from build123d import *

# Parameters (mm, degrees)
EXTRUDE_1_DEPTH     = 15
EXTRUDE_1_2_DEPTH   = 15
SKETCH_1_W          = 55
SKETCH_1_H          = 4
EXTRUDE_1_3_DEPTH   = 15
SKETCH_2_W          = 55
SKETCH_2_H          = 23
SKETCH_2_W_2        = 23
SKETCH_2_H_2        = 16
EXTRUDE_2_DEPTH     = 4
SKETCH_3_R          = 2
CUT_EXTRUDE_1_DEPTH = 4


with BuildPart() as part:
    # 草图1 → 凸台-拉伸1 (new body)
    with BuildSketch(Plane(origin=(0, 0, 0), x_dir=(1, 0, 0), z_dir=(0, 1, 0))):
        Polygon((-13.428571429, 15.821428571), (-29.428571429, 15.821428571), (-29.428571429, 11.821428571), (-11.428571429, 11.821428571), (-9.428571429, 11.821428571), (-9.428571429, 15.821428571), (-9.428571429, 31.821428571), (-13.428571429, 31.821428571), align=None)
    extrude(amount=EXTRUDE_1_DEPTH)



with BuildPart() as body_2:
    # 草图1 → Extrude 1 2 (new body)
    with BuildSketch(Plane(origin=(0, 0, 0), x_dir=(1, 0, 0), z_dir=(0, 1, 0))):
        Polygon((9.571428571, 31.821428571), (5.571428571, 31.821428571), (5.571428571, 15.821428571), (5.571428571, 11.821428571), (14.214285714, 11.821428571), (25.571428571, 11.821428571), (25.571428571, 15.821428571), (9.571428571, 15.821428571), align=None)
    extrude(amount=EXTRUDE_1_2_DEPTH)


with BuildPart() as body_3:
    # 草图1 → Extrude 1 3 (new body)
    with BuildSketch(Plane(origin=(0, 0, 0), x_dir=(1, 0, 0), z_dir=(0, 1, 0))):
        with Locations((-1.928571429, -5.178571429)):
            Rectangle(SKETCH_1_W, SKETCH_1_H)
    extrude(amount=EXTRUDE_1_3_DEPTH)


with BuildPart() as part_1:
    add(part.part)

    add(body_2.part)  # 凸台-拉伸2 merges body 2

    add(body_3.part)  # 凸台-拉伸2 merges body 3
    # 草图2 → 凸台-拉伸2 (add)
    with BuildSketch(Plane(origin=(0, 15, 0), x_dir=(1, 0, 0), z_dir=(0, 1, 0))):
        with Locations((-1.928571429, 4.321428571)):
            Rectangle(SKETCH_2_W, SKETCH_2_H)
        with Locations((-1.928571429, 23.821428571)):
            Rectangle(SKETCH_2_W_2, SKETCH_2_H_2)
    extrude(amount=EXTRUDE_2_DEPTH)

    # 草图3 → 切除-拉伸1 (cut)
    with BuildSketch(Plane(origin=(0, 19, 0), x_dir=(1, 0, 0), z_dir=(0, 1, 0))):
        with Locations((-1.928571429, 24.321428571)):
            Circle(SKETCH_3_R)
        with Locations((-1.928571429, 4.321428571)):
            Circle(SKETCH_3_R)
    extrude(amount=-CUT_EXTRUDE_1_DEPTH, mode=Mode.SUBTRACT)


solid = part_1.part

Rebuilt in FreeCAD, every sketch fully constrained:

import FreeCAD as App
import Part
import Sketcher

V = App.Vector
Q = App.Units.Quantity


def add_polygon(sketch, points):
    """Adds a closed chain of lines whose ends are joined by coincident constraints."""
    first, n = sketch.GeometryCount, len(points)
    for a, b in zip(points, points[1:] + points[:1]):
        sketch.addGeometry(Part.LineSegment(App.Vector(*a, 0), App.Vector(*b, 0)), False)
    for i in range(n):
        sketch.addConstraint(Sketcher.Constraint("Coincident", first + i, 2, first + (i + 1) % n, 1))

doc = App.newDocument("Part")
body = doc.addObject("PartDesign::Body", "Body")

# Sketch on XZ plane
sketch1 = body.newObject("Sketcher::SketchObject", "Sketch")
sketch1.AttachmentSupport = (doc.getObject("XZ_Plane"), [""])
sketch1.MapMode = "FlatFace"
add_polygon(sketch1, [(-13.428571, -15.821429), (-29.428571, -15.821429), (-29.428571, -11.821429), (-9.428571, -11.821429), (-9.428571, -31.821429), (-13.428571, -31.821429)])  # lines 0-5
sketch1.addConstraint([
    Sketcher.Constraint("Horizontal", 0),
    Sketcher.Constraint("Vertical", 1),
    Sketcher.Constraint("Horizontal", 2),
    Sketcher.Constraint("Vertical", 3),
    Sketcher.Constraint("Horizontal", 4),
    Sketcher.Constraint("Vertical", 5),
    Sketcher.Constraint("Equal", 4, 1),
    Sketcher.Constraint("Equal", 2, 3),
    Sketcher.Constraint("DistanceX", 0, 2, 0, 1, Q("16 mm")),
    Sketcher.Constraint("DistanceX", 2, 1, 2, 2, Q("20 mm")),
    Sketcher.Constraint("DistanceX", 0, 2, -1, 1, Q("29.428571 mm")),
    Sketcher.Constraint("DistanceY", 0, 2, -1, 1, Q("15.821429 mm")),
])
pad1 = body.newObject("PartDesign::Pad", "Pad")
pad1.Profile = sketch1
pad1.Length = 15
pad1.Reversed = True
body2 = doc.addObject("PartDesign::Body", "Body001")

# Sketch on XZ plane
sketch2 = body2.newObject("Sketcher::SketchObject", "Sketch001")
sketch2.AttachmentSupport = (doc.getObject("XZ_Plane001"), [""])
sketch2.MapMode = "FlatFace"
add_polygon(sketch2, [(9.571429, -31.821429), (5.571429, -31.821429), (5.571429, -11.821429), (25.571429, -11.821429), (25.571429, -15.821429), (9.571429, -15.821429)])  # lines 0-5
sketch2.addConstraint([
    Sketcher.Constraint("Horizontal", 0),
    Sketcher.Constraint("Vertical", 1),
    Sketcher.Constraint("Horizontal", 2),
    Sketcher.Constraint("Vertical", 3),
    Sketcher.Constraint("Horizontal", 4),
    Sketcher.Constraint("Vertical", 5),
    Sketcher.Constraint("Equal", 2, 1),
    Sketcher.Constraint("Equal", 0, 3),
    Sketcher.Constraint("DistanceX", 0, 2, 0, 1, Q("4 mm")),
    Sketcher.Constraint("DistanceX", 2, 1, 2, 2, Q("20 mm")),
    Sketcher.Constraint("DistanceX", -1, 1, 0, 2, Q("5.571429 mm")),
    Sketcher.Constraint("DistanceY", 0, 2, -1, 1, Q("31.821429 mm")),
])
pad2 = body2.newObject("PartDesign::Pad", "Pad001")
pad2.Profile = sketch2
pad2.Length = 15
pad2.Reversed = True
body3 = doc.addObject("PartDesign::Body", "Body002")

# Sketch on XZ plane
sketch3 = body3.newObject("Sketcher::SketchObject", "Sketch002")
sketch3.AttachmentSupport = (doc.getObject("XZ_Plane002"), [""])
sketch3.MapMode = "FlatFace"
add_polygon(sketch3, [(-29.428571, 3.178571), (-29.428571, 7.178571), (25.571429, 7.178571), (25.571429, 3.178571)])  # lines 0-3
sketch3.addConstraint([
    Sketcher.Constraint("Vertical", 0),
    Sketcher.Constraint("Horizontal", 1),
    Sketcher.Constraint("Vertical", 2),
    Sketcher.Constraint("Horizontal", 3),
    Sketcher.Constraint("DistanceX", 1, 1, 1, 2, Q("55 mm")),
    Sketcher.Constraint("DistanceY", 0, 1, 0, 2, Q("4 mm")),
    Sketcher.Constraint("DistanceX", 0, 2, -1, 1, Q("29.428571 mm")),
    Sketcher.Constraint("DistanceY", -1, 1, 0, 2, Q("7.178571 mm")),
])
pad3 = body3.newObject("PartDesign::Pad", "Pad002")
pad3.Profile = sketch3
pad3.Length = 15
pad3.Reversed = True
body.AllowCompound = True
doc.recompute()

boolean = body.newObject("PartDesign::Boolean", "Boolean")
boolean.Type = "Fuse"
boolean.addObjects([body2])
doc.recompute()

boolean2 = body.newObject("PartDesign::Boolean", "Boolean001")
boolean2.Type = "Fuse"
boolean2.addObjects([body3])

# Sketch on XZ plane
sketch4 = body.newObject("Sketcher::SketchObject", "Sketch003")
sketch4.AttachmentSupport = (doc.getObject("XZ_Plane"), [""])
sketch4.MapMode = "FlatFace"
sketch4.AttachmentOffset = App.Placement(V(0, 0, -15), App.Rotation())
add_polygon(sketch4, [(-29.428571, -15.821429), (-29.428571, 7.178571), (25.571429, 7.178571), (25.571429, -15.821429), (9.571429, -15.821429), (9.571429, -31.821429), (-13.428571, -31.821429), (-13.428571, -15.821429)])  # lines 0-7
sketch4.addConstraint([
    Sketcher.Constraint("Vertical", 0),
    Sketcher.Constraint("Horizontal", 1),
    Sketcher.Constraint("Vertical", 2),
    Sketcher.Constraint("Horizontal", 3),
    Sketcher.Constraint("Vertical", 4),
    Sketcher.Constraint("Horizontal", 5),
    Sketcher.Constraint("Vertical", 6),
    Sketcher.Constraint("Horizontal", 7),
    Sketcher.Constraint("Horizontal", 3, 2, 6, 2),
    Sketcher.Constraint("Equal", 3, 7),
    Sketcher.Constraint("Equal", 5, 0),
    Sketcher.Constraint("Equal", 7, 4),
    Sketcher.Constraint("DistanceX", 1, 1, 1, 2, Q("55 mm")),
    Sketcher.Constraint("DistanceX", 3, 2, 3, 1, Q("16 mm")),
    Sketcher.Constraint("DistanceX", 0, 2, -1, 1, Q("29.428571 mm")),
    Sketcher.Constraint("DistanceY", -1, 1, 0, 2, Q("7.178571 mm")),
])
pad4 = body.newObject("PartDesign::Pad", "Pad003")
pad4.Profile = sketch4
pad4.Length = 4
pad4.Reversed = True

# Sketch on XZ plane
sketch5 = body.newObject("Sketcher::SketchObject", "Sketch004")
sketch5.AttachmentSupport = (doc.getObject("XZ_Plane"), [""])
sketch5.MapMode = "FlatFace"
sketch5.AttachmentOffset = App.Placement(V(0, 0, -19), App.Rotation())
sketch5.addGeometry([
    Part.Circle(V(-1.928571, -24.321429, 0), V(0, 0, 1), 2),
    Part.Circle(V(-1.928571, -4.321429, 0), V(0, 0, 1), 2),
], False)
sketch5.addConstraint([
    Sketcher.Constraint("Equal", 0, 1),
    Sketcher.Constraint("Vertical", 0, 3, 1, 3),
    Sketcher.Constraint("Diameter", 0, Q("4 mm")),
    Sketcher.Constraint("DistanceY", 0, 3, 1, 3, Q("20 mm")),
    Sketcher.Constraint("DistanceX", 0, 3, -1, 1, Q("1.928571 mm")),
    Sketcher.Constraint("DistanceY", 0, 3, -1, 1, Q("24.321429 mm")),
])
pocket1 = body.newObject("PartDesign::Pocket", "Pocket")
pocket1.Profile = sketch5
pocket1.Length = 4
pocket1.Reversed = True

doc.recompute()
